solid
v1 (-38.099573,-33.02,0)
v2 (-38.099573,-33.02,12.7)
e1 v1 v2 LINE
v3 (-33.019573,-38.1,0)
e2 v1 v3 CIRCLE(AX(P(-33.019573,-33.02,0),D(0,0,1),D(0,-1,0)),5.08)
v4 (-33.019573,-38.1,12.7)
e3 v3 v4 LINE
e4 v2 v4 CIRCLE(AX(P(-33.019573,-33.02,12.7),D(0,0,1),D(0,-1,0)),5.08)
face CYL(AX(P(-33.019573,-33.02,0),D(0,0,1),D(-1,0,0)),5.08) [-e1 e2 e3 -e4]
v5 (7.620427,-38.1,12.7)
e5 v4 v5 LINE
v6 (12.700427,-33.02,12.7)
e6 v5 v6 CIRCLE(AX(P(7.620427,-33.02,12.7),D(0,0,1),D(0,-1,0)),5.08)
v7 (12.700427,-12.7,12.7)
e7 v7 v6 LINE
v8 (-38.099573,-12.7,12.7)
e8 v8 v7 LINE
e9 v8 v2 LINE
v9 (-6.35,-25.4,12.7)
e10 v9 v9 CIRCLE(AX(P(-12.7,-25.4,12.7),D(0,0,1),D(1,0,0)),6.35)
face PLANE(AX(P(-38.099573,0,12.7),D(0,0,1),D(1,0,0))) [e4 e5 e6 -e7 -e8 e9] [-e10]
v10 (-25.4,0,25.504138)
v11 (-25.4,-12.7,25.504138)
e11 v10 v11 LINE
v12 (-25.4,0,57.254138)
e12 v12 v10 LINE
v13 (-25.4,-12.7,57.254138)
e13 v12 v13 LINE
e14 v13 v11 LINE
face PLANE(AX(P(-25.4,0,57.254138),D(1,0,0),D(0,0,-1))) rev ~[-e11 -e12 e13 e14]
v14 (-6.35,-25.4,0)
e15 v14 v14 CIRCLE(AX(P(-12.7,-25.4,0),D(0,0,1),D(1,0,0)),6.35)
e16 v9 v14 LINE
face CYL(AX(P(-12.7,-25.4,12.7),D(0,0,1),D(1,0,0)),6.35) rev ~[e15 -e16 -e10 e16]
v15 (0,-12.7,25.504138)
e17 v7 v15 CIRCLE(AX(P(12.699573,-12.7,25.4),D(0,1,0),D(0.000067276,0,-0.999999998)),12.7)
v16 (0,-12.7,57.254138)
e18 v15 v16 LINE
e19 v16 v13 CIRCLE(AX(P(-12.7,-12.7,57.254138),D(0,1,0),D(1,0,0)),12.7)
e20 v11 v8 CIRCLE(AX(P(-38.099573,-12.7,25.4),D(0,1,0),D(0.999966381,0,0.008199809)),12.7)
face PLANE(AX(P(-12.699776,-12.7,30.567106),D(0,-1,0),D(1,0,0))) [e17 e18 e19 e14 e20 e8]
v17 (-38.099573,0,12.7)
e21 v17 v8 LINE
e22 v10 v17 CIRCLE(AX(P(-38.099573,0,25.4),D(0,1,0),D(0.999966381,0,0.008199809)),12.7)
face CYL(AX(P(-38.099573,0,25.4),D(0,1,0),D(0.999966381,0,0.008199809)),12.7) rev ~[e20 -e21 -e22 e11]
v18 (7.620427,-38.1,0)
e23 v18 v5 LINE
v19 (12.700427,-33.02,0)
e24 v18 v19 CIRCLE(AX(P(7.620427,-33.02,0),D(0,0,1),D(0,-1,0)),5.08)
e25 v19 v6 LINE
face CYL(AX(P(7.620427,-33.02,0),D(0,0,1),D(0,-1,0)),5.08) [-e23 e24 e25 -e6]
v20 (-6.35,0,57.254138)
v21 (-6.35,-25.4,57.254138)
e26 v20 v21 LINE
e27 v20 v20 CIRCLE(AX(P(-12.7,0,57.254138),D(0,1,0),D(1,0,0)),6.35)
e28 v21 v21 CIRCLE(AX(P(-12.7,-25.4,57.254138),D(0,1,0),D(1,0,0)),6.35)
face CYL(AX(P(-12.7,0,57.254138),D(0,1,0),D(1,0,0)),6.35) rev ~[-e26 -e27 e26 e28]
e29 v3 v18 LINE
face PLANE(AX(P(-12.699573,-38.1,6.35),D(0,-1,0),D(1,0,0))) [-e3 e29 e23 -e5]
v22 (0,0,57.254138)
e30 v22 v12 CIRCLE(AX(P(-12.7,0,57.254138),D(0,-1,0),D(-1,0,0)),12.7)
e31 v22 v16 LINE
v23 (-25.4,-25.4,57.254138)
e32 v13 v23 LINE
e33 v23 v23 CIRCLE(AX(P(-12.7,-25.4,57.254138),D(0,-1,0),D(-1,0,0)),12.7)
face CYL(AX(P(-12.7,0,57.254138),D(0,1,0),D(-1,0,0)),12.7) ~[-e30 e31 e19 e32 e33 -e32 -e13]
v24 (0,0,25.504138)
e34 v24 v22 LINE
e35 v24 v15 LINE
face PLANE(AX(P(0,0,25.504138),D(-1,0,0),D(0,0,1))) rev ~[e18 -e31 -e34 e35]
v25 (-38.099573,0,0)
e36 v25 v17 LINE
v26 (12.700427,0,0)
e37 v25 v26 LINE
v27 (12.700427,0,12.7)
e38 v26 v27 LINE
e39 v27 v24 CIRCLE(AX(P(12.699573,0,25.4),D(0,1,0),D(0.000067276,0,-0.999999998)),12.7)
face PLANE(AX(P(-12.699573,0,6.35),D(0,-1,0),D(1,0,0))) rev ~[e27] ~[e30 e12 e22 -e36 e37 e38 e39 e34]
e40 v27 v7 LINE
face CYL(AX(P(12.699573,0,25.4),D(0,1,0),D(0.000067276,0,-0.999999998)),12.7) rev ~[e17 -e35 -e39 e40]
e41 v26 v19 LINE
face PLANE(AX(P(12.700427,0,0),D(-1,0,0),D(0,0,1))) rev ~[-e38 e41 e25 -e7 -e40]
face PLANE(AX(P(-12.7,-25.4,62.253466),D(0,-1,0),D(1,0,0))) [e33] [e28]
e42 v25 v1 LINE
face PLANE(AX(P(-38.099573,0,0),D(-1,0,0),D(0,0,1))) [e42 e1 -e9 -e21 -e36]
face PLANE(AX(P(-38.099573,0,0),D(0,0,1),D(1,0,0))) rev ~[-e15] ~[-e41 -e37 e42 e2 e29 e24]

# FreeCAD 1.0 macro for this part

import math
import FreeCAD as App
import Part
import Sketcher

V = App.Vector
Q = App.Units.Quantity


def edges_at(feature, points):
    """Names of the edges that pass closest to the given points."""
    edges = feature.Shape.Edges
    near = lambda p: min(range(len(edges)), key=lambda i: edges[i].distToShape(Part.Vertex(*p))[0])
    return sorted({f"Edge{near(p) + 1}" for p in points})

doc = App.newDocument("Part")
body = doc.addObject("PartDesign::Body", "Body")

# Sketch on XZ plane
sketch1 = body.newObject("Sketcher::SketchObject", "Sketch")
sketch1.AttachmentSupport = (doc.getObject("XZ_Plane"), [""])
sketch1.MapMode = "FlatFace"
sketch1.addGeometry([
    Part.Circle(V(-13, 57, 0), V(0, 0, 1), 13),
    Part.Circle(V(-13, 57, 0), V(0, 0, 1), 6),
], False)
sketch1.addConstraint([
    Sketcher.Constraint("Coincident", 1, 3, 0, 3),
    Sketcher.Constraint("Diameter", 0, Q("1 in")),
    Sketcher.Constraint("Diameter", 1, Q("0.5 in")),
    Sketcher.Constraint("DistanceX", 0, 3, -1, 1, Q("0.5 in")),
    Sketcher.Constraint("DistanceY", -1, 1, 0, 3, Q("2.2540999 in")),
])
pad1 = body.newObject("PartDesign::Pad", "Pad")
pad1.Profile = sketch1
pad1.Length = Q("1 in")

# Sketch on XZ plane
sketch2 = body.newObject("Sketcher::SketchObject", "Sketch001")
sketch2.AttachmentSupport = (doc.getObject("XZ_Plane"), [""])
sketch2.MapMode = "FlatFace"
sketch2.addGeometry([
    Part.ArcOfCircle(Part.Circle(V(-38, 25, 0), V(0, 0, 1), 13), math.radians(-90), math.radians(0)),  # 0
    Part.LineSegment(V(-38, 13, 0), V(13, 13, 0)),  # 1
    Part.ArcOfCircle(Part.Circle(V(13, 25, 0), V(0, 0, 1), 13), math.radians(180), math.radians(270)),  # 2
    Part.LineSegment(V(0, 26, 0), V(0, 57, 0)),  # 3
    Part.ArcOfCircle(Part.Circle(V(-13, 57, 0), V(0, 0, 1), 13), math.radians(180), math.radians(360)),  # 4
    Part.LineSegment(V(-25, 57, 0), V(-25, 26, 0)),  # 5
], False)
sketch2.addConstraint([
    Sketcher.Constraint("Tangent", 0, 1, 1, 1),
    Sketcher.Constraint("Coincident", 1, 2, 2, 2),
    Sketcher.Constraint("Coincident", 2, 1, 3, 1),
    Sketcher.Constraint("Tangent", 3, 2, 4, 2),
    Sketcher.Constraint("Tangent", 4, 1, 5, 1),
    Sketcher.Constraint("Coincident", 5, 2, 0, 2),
    Sketcher.Constraint("Horizontal", 1),
    Sketcher.Constraint("Vertical", 3),
    Sketcher.Constraint("Vertical", 5),
    Sketcher.Constraint("Equal", 0, 2),
    Sketcher.Constraint("Equal", 2, 4),
    Sketcher.Constraint("PointOnObject", 2, 1, -2),
    Sketcher.Constraint("Horizontal", 2, 1, 5, 2),
    Sketcher.Constraint("Radius", 0, Q("0.5 in")),
    Sketcher.Constraint("DistanceX", 1, 1, 1, 2, Q("2 in")),
    Sketcher.Constraint("DistanceY", -1, 1, 0, 3, Q("1 in")),
    Sketcher.Constraint("DistanceY", 3, 1, 3, 2, Q("1.25 in")),
    Sketcher.Constraint("DistanceY", -1, 1, 4, 3, Q("2.2540999 in")),
])
pad2 = body.newObject("PartDesign::Pad", "Pad001")
pad2.Profile = sketch2
pad2.Length = Q("0.5 in")

# Sketch on XZ plane
sketch3 = body.newObject("Sketcher::SketchObject", "Sketch002")
sketch3.AttachmentSupport = (doc.getObject("XZ_Plane"), [""])
sketch3.MapMode = "FlatFace"
sketch3.addGeometry([
    Part.LineSegment(V(-38, 13, 0), V(-38, 0, 0)),
    Part.LineSegment(V(-38, 0, 0), V(13, 0, 0)),
    Part.LineSegment(V(13, 0, 0), V(13, 13, 0)),
    Part.LineSegment(V(13, 13, 0), V(-38, 13, 0)),
], False)
sketch3.addConstraint([
    Sketcher.Constraint("Coincident", 0, 2, 1, 1),
    Sketcher.Constraint("Coincident", 1, 2, 2, 1),
    Sketcher.Constraint("Coincident", 2, 2, 3, 1),
    Sketcher.Constraint("Coincident", 3, 2, 0, 1),
    Sketcher.Constraint("Vertical", 0),
    Sketcher.Constraint("Horizontal", 1),
    Sketcher.Constraint("Vertical", 2),
    Sketcher.Constraint("Horizontal", 3),
    Sketcher.Constraint("PointOnObject", 0, 2, -1),
    Sketcher.Constraint("DistanceX", 1, 1, 1, 2, Q("2 in")),
    Sketcher.Constraint("DistanceY", 0, 2, 0, 1, Q("0.5 in")),
    Sketcher.Constraint("DistanceX", 0, 2, -1, 1, 38.099573),
])
pad3 = body.newObject("PartDesign::Pad", "Pad002")
pad3.Profile = sketch3
pad3.Length = Q("1.5 in")

# Sketch on XY plane
sketch4 = body.newObject("Sketcher::SketchObject", "Sketch003")
sketch4.AttachmentSupport = (doc.getObject("XY_Plane"), [""])
sketch4.MapMode = "FlatFace"
sketch4.AttachmentOffset = App.Placement(V(0, 0, 0.5 * 25.4), App.Rotation())
sketch4.addGeometry(Part.Circle(V(-13, -25, 0), V(0, 0, 1), 6), False)
sketch4.addConstraint([
    Sketcher.Constraint("Diameter", 0, Q("0.5 in")),
    Sketcher.Constraint("DistanceY", 0, 3, -1, 1, Q("1 in")),
    Sketcher.Constraint("DistanceX", 0, 3, -1, 1, Q("0.5 in")),
])
pocket1 = body.newObject("PartDesign::Pocket", "Pocket")
pocket1.Profile = sketch4
pocket1.Type = "ThroughAll"
doc.recompute()

fillet = body.newObject("PartDesign::Fillet", "Fillet")
fillet.Base = (pocket1, edges_at(pocket1, [(12.7, -38.1, 6.35), (-38.1, -38.1, 6.35)]))
fillet.Radius = Q("0.2 in")

doc.recompute()
